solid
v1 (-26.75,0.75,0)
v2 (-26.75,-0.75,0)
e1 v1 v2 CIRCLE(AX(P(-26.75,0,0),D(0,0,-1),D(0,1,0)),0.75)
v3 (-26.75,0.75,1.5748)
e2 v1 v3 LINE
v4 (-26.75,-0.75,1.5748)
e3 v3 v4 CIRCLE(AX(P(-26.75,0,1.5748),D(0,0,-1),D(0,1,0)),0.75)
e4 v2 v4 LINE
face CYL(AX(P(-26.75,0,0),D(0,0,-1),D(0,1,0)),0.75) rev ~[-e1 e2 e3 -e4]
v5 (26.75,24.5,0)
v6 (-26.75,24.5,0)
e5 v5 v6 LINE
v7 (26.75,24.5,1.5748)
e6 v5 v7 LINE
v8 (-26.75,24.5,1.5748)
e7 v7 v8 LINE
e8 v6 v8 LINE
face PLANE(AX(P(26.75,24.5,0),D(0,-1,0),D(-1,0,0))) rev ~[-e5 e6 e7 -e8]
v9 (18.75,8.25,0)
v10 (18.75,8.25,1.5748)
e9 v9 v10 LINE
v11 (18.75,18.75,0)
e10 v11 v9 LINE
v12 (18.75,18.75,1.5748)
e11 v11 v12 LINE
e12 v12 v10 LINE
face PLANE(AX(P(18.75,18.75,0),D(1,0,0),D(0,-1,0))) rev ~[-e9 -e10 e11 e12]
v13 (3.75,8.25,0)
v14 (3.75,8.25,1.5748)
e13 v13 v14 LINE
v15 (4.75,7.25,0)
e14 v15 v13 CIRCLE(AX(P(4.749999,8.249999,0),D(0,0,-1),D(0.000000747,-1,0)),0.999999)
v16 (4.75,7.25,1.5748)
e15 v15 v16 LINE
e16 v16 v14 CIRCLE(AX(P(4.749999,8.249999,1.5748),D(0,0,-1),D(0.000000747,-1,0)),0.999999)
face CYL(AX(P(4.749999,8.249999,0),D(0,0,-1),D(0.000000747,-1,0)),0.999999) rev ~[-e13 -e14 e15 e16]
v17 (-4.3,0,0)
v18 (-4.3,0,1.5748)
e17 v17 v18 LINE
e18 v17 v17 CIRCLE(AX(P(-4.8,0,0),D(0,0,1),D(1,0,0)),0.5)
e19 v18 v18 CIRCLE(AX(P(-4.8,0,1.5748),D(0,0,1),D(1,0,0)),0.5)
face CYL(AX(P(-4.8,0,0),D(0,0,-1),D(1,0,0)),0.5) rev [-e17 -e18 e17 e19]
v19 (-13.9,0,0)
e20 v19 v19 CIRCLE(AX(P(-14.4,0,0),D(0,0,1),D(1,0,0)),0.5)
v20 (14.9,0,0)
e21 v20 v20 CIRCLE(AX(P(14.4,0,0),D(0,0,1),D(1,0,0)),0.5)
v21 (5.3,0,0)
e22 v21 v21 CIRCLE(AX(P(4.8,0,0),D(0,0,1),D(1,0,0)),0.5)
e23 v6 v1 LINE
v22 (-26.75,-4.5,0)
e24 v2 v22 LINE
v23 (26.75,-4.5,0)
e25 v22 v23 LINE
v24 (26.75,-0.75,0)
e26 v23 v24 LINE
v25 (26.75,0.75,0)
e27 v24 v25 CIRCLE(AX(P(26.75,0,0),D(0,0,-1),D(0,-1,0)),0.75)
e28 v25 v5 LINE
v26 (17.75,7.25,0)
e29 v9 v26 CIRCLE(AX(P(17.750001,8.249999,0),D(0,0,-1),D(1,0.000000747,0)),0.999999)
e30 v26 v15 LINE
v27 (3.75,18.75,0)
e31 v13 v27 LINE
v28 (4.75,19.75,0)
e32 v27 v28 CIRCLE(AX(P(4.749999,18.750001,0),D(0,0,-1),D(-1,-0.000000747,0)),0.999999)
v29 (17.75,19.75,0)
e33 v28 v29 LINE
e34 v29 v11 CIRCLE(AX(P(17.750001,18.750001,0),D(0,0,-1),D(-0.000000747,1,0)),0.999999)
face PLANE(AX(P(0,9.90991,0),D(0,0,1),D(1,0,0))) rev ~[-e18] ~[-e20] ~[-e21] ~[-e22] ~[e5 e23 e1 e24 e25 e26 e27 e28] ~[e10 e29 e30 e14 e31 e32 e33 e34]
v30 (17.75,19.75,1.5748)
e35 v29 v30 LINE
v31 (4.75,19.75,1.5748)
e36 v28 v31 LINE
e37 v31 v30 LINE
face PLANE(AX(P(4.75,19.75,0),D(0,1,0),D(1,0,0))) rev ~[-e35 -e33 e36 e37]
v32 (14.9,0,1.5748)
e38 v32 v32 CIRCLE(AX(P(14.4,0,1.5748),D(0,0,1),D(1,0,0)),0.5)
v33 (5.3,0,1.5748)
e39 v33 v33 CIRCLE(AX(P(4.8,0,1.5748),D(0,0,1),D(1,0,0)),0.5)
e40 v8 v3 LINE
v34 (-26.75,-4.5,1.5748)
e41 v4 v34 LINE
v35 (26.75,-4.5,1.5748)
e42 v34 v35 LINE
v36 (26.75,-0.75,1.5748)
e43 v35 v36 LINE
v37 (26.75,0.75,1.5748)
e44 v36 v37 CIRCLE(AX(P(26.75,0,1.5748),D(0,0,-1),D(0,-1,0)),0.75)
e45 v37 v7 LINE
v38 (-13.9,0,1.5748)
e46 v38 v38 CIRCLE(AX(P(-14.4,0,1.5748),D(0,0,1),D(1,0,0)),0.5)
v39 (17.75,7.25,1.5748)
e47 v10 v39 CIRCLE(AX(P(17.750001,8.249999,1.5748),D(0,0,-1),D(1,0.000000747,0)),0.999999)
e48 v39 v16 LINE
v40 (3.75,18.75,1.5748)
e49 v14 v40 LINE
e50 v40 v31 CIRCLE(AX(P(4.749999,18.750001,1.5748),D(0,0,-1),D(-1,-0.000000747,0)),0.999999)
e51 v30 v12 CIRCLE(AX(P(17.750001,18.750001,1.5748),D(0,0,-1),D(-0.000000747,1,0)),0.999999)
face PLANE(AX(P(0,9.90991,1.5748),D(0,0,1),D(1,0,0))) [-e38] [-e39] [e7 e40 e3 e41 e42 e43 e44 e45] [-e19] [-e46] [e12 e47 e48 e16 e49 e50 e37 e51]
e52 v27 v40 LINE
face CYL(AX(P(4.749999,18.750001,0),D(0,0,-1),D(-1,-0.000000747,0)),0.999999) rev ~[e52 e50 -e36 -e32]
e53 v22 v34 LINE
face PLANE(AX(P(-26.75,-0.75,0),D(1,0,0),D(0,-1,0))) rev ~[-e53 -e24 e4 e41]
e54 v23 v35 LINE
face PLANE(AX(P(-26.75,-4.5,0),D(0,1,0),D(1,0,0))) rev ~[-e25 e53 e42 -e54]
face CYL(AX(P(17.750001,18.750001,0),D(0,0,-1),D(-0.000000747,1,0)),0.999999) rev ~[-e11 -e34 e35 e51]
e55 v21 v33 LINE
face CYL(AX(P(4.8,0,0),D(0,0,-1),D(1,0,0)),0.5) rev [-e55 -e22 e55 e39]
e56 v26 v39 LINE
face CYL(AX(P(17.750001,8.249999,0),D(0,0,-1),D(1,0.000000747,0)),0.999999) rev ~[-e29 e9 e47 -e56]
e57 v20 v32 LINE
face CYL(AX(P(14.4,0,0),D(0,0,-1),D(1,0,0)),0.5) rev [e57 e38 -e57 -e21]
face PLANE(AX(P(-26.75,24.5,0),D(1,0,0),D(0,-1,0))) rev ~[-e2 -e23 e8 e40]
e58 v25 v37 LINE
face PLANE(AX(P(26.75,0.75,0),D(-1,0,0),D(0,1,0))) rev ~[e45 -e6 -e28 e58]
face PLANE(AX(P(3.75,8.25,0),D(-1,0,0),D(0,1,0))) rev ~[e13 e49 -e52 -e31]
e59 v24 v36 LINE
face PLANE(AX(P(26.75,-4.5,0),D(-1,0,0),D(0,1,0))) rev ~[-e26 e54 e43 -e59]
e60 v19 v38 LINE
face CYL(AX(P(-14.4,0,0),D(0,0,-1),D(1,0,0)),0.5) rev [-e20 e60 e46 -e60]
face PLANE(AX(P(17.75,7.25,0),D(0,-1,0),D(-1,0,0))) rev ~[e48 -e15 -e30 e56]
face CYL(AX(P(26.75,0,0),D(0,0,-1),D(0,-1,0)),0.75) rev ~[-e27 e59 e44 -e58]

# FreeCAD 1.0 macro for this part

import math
import FreeCAD as App
import Part
import Sketcher

V = App.Vector
Q = App.Units.Quantity

doc = App.newDocument("Part")
body = doc.addObject("PartDesign::Body", "Body")

# Sketch on XY plane
sketch1 = doc.addObject("Sketcher::SketchObject", "Sketch")
body.addObject(sketch1)
sketch1.AttachmentSupport = (doc.XY_Plane, [""])
sketch1.MapMode = "FlatFace"
sketch1.addGeometry([
    Part.LineSegment(V(-26.8, -0.8, 0), V(-26.8, -4.5, 0)),  # 0
    Part.LineSegment(V(-26.8, -4.5, 0), V(26.8, -4.5, 0)),  # 1
    Part.LineSegment(V(26.8, -4.5, 0), V(26.8, -0.8, 0)),  # 2
    Part.ArcOfCircle(Part.Circle(V(26.8, 0, 0), V(0, 0, 1), 0.8), math.radians(90), math.radians(270)),  # 3
    Part.LineSegment(V(26.8, 0.8, 0), V(26.8, 24.5, 0)),  # 4
    Part.LineSegment(V(26.8, 24.5, 0), V(-26.8, 24.5, 0)),  # 5
    Part.LineSegment(V(-26.8, 24.5, 0), V(-26.8, 0.8, 0)),  # 6
    Part.ArcOfCircle(Part.Circle(V(-26.8, 0, 0), V(0, 0, 1), 0.8), math.radians(-90), math.radians(90)),  # 7
    Part.Circle(V(-14.4, 0, 0), V(0, 0, 1), 0.5),  # 8
    Part.Circle(V(-4.8, 0, 0), V(0, 0, 1), 0.5),  # 9
    Part.Circle(V(4.8, 0, 0), V(0, 0, 1), 0.5),  # 10
    Part.Circle(V(14.4, 0, 0), V(0, 0, 1), 0.5),  # 11
    Part.LineSegment(V(3.8, 8.2, 0), V(3.8, 18.8, 0)),  # 12
    Part.ArcOfCircle(Part.Circle(V(4.7, 18.8, 0), V(0, 0, 1), 1), math.radians(90), math.radians(180)),  # 13
    Part.LineSegment(V(4.8, 19.8, 0), V(17.8, 19.8, 0)),  # 14
    Part.ArcOfCircle(Part.Circle(V(17.8, 18.8, 0), V(0, 0, 1), 1), math.radians(0), math.radians(90)),  # 15
    Part.LineSegment(V(18.8, 18.8, 0), V(18.8, 8.2, 0)),  # 16
    Part.ArcOfCircle(Part.Circle(V(17.8, 8.2, 0), V(0, 0, 1), 1), math.radians(-90), math.radians(0)),  # 17
    Part.LineSegment(V(17.8, 7.2, 0), V(4.8, 7.2, 0)),  # 18
    Part.ArcOfCircle(Part.Circle(V(4.7, 8.2, 0), V(0, 0, 1), 1), math.radians(180), math.radians(270)),  # 19
], False)
sketch1.addConstraint([
    Sketcher.Constraint("Coincident", 0, 2, 1, 1),
    Sketcher.Constraint("Coincident", 1, 2, 2, 1),
    Sketcher.Constraint("Coincident", 2, 2, 3, 2),
    Sketcher.Constraint("Coincident", 3, 1, 4, 1),
    Sketcher.Constraint("Coincident", 4, 2, 5, 1),
    Sketcher.Constraint("Coincident", 5, 2, 6, 1),
    Sketcher.Constraint("Coincident", 6, 2, 7, 2),
    Sketcher.Constraint("Coincident", 7, 1, 0, 1),
    Sketcher.Constraint("Tangent", 12, 2, 13, 2),
    Sketcher.Constraint("Tangent", 13, 1, 14, 1),
    Sketcher.Constraint("Tangent", 14, 2, 15, 2),
    Sketcher.Constraint("Tangent", 15, 1, 16, 1),
    Sketcher.Constraint("Tangent", 16, 2, 17, 2),
    Sketcher.Constraint("Tangent", 17, 1, 18, 1),
    Sketcher.Constraint("Tangent", 18, 2, 19, 2),
    Sketcher.Constraint("Tangent", 19, 1, 12, 1),
    Sketcher.Constraint("Vertical", 0),
    Sketcher.Constraint("Horizontal", 1),
    Sketcher.Constraint("Vertical", 2),
    Sketcher.Constraint("Vertical", 4),
    Sketcher.Constraint("Horizontal", 5),
    Sketcher.Constraint("Vertical", 6),
    Sketcher.Constraint("Vertical", 12),
    Sketcher.Constraint("Horizontal", 14),
    Sketcher.Constraint("Vertical", 16),
    Sketcher.Constraint("Horizontal", 18),
    Sketcher.Constraint("Equal", 3, 7),
    Sketcher.Constraint("Equal", 8, 9),
    Sketcher.Constraint("Equal", 9, 10),
    Sketcher.Constraint("Equal", 10, 11),
    Sketcher.Constraint("Equal", 13, 15),
    Sketcher.Constraint("Equal", 15, 17),
    Sketcher.Constraint("Equal", 17, 19),
    Sketcher.Constraint("Symmetric", 3, 3, 7, 3, -1, 1),
    Sketcher.Constraint("Symmetric", 9, 3, 10, 3, -1, 1),
    Sketcher.Constraint("Symmetric", 8, 3, 11, 3, -1, 1),
    Sketcher.Constraint("Symmetric", 3, 1, 6, 2, -2),
    Sketcher.Constraint("PointOnObject", 8, 3, -1),
    Sketcher.Constraint("PointOnObject", 9, 3, -1),
    Sketcher.Constraint("Vertical", 7, 3, 0, 2),
    Sketcher.Constraint("Vertical", 3, 3, 1, 2),
    Sketcher.Constraint("Vertical", 2, 2, 3, 1),
    Sketcher.Constraint("Diameter", 8, Q("1 mm")),
    Sketcher.Constraint("Radius", 13, Q("0.999999 mm")),
    Sketcher.Constraint("DistanceX", 14, 1, 14, 2, Q("13 mm")),
    Sketcher.Constraint("Radius", 3, Q("0.75 mm")),
    Sketcher.Constraint("DistanceX", 1, 1, 1, 2, Q("53.5 mm")),
    Sketcher.Constraint("DistanceY", 12, 1, 12, 2, Q("10.5 mm")),
    Sketcher.Constraint("DistanceX", 13, 3, 3, 3, Q("22.000001 mm")),
    Sketcher.Constraint("DistanceY", 2, 2, 17, 3, Q("8.999999 mm")),
    Sketcher.Constraint("DistanceY", 0, 2, 5, 2, Q("29 mm")),
    Sketcher.Constraint("DistanceY", 0, 2, 0, 1, Q("3.75 mm")),
    Sketcher.Constraint("DistanceX", 8, 3, -1, 1, Q("14.4 mm")),
    Sketcher.Constraint("DistanceX", 9, 3, -1, 1, Q("4.8 mm")),
])
pad1 = doc.addObject("PartDesign::Pad", "Pad")
body.addObject(pad1)
pad1.Profile = sketch1
pad1.Length = 1.5748

doc.recompute()
